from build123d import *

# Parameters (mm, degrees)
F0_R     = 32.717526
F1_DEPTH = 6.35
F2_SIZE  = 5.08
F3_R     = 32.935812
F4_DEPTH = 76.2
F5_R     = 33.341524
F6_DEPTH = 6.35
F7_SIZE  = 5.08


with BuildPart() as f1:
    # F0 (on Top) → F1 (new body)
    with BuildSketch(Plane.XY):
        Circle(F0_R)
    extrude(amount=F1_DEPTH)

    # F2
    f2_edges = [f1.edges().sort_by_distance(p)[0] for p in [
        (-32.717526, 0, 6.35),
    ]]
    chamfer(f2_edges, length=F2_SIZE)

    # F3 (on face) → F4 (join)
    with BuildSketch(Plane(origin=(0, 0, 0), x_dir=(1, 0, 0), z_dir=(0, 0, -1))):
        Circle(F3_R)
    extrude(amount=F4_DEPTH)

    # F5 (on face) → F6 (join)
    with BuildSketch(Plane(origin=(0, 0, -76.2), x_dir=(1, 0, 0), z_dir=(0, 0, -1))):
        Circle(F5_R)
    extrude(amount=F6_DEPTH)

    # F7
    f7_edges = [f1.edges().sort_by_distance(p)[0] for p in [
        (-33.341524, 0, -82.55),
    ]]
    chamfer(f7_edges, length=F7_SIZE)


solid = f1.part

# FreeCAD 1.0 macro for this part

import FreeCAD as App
import Part
import Sketcher
Q = App.Units.Quantity


def edges_at(feature, points):
    """Names of the edges that pass closest to the given points."""
    edges = feature.Shape.Edges
    near = lambda p: min(range(len(edges)), key=lambda i: edges[i].distToShape(Part.Vertex(*p))[0])
    return sorted({f"Edge{near(p) + 1}" for p in points})

doc = App.newDocument("Part")
body = doc.addObject("PartDesign::Body", "Body")

# Sketch on XY plane
sketch1 = doc.addObject("Sketcher::SketchObject", "Sketch")
body.addObject(sketch1)
sketch1.AttachmentSupport = (doc.XY_Plane, [""])
sketch1.MapMode = "FlatFace"
sketch1.addGeometry(Part.Circle(App.Vector(0, 0, 0), App.Vector(0, 0, 1), 33), False)
sketch1.addConstraint(Sketcher.Constraint("Coincident", 0, 3, -1, 1))
sketch1.addConstraint(Sketcher.Constraint("Diameter", 0, Q("65.435052 mm")))
pad1 = doc.addObject("PartDesign::Pad", "Pad")
body.addObject(pad1)
pad1.Profile = sketch1
pad1.Length = Q("0.25 in")
doc.recompute()

chamfer = doc.addObject("PartDesign::Chamfer", "Chamfer")
body.addObject(chamfer)
chamfer.Base = (pad1, edges_at(pad1, [(-32.718, 0, 6.35)]))
chamfer.Size = Q("0.2 in")

# Sketch on XY plane
sketch2 = doc.addObject("Sketcher::SketchObject", "Sketch001")
body.addObject(sketch2)
sketch2.AttachmentSupport = (doc.XY_Plane, [""])
sketch2.MapMode = "FlatFace"
sketch2.addGeometry(Part.Circle(App.Vector(0, 0, 0), App.Vector(0, 0, 1), 33), False)
sketch2.addConstraint(Sketcher.Constraint("Coincident", 0, 3, -1, 1))
sketch2.addConstraint(Sketcher.Constraint("Diameter", 0, Q("65.871624 mm")))
pad2 = doc.addObject("PartDesign::Pad", "Pad001")
body.addObject(pad2)
pad2.Profile = sketch2
pad2.Length = Q("3 in")
pad2.Reversed = True

# Sketch on XY plane
sketch3 = doc.addObject("Sketcher::SketchObject", "Sketch002")
body.addObject(sketch3)
sketch3.AttachmentSupport = (doc.XY_Plane, [""])
sketch3.MapMode = "FlatFace"
sketch3.AttachmentOffset = App.Placement(App.Vector(0, 0, -3 * 25.4), App.Rotation())
sketch3.addGeometry(Part.Circle(App.Vector(0, 0, 0), App.Vector(0, 0, 1), 33), False)
sketch3.addConstraint(Sketcher.Constraint("Coincident", 0, 3, -1, 1))
sketch3.addConstraint(Sketcher.Constraint("Diameter", 0, Q("66.683048 mm")))
pad3 = doc.addObject("PartDesign::Pad", "Pad002")
body.addObject(pad3)
pad3.Profile = sketch3
pad3.Length = Q("0.25 in")
pad3.Reversed = True
doc.recompute()

chamfer2 = doc.addObject("PartDesign::Chamfer", "Chamfer001")
body.addObject(chamfer2)
chamfer2.Base = (pad3, edges_at(pad3, [(-33.342, 0, -82.55)]))
chamfer2.Size = Q("0.2 in")

doc.recompute()
